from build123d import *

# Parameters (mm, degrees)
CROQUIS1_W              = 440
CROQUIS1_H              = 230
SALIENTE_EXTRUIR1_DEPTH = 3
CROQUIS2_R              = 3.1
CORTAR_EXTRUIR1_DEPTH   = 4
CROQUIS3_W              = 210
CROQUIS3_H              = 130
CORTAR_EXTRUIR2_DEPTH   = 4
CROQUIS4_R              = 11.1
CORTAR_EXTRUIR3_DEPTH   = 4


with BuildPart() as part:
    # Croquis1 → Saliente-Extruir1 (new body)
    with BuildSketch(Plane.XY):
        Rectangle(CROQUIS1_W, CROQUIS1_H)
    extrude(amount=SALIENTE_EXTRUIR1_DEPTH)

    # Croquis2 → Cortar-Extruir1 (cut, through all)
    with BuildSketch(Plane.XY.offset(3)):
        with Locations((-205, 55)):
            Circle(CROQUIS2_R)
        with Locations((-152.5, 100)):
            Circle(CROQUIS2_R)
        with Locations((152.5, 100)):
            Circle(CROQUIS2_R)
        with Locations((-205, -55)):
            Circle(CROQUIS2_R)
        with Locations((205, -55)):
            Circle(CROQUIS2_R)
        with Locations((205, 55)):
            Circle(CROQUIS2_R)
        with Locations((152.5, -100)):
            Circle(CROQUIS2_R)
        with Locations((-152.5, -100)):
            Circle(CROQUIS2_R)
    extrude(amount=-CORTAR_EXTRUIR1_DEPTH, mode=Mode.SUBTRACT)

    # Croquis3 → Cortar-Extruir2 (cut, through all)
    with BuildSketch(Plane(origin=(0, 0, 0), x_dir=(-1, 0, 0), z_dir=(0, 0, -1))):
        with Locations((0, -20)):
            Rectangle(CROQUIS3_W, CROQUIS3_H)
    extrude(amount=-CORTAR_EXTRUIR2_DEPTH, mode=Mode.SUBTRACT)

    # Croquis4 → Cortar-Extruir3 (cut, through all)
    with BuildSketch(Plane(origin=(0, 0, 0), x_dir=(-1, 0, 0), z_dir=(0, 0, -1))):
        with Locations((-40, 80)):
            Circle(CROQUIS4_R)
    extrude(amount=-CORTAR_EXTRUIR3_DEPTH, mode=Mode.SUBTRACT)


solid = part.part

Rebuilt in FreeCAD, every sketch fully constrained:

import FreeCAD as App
import Part
import Sketcher
from FreeCAD import Vector
Q = App.Units.Quantity

doc = App.newDocument("Part")
body = doc.addObject("PartDesign::Body", "Body")

sketch1 = body.newObject("Sketcher::SketchObject", "Sketch")
sketch1.AttachmentSupport = (doc.getObject("XY_Plane"), [""])
sketch1.MapMode = "FlatFace"
sketch1.addGeometry(Part.LineSegment(Vector(-220, 115, 0), Vector(-220, -115, 0)), False)
sketch1.addGeometry(Part.LineSegment(Vector(-220, -115, 0), Vector(220, -115, 0)), False)
sketch1.addGeometry(Part.LineSegment(Vector(220, -115, 0), Vector(220, 115, 0)), False)
sketch1.addGeometry(Part.LineSegment(Vector(220, 115, 0), Vector(-220, 115, 0)), False)
sketch1.addConstraint(Sketcher.Constraint("Coincident", 0, 2, 1, 1))
sketch1.addConstraint(Sketcher.Constraint("Coincident", 1, 2, 2, 1))
sketch1.addConstraint(Sketcher.Constraint("Coincident", 2, 2, 3, 1))
sketch1.addConstraint(Sketcher.Constraint("Coincident", 3, 2, 0, 1))
sketch1.addConstraint(Sketcher.Constraint("Vertical", 0))
sketch1.addConstraint(Sketcher.Constraint("Horizontal", 1))
sketch1.addConstraint(Sketcher.Constraint("Vertical", 2))
sketch1.addConstraint(Sketcher.Constraint("Horizontal", 3))
sketch1.addConstraint(Sketcher.Constraint("Symmetric", 0, 2, 2, 2, -1, 1))
sketch1.addConstraint(Sketcher.Constraint("DistanceX", 1, 1, 1, 2, Q("440 mm")))
sketch1.addConstraint(Sketcher.Constraint("DistanceY", 0, 2, 0, 1, Q("230 mm")))
pad1 = body.newObject("PartDesign::Pad", "Pad")
pad1.Profile = sketch1
pad1.Length = 3

sketch2 = body.newObject("Sketcher::SketchObject", "Sketch001")
sketch2.AttachmentSupport = (doc.getObject("XY_Plane"), [""])
sketch2.MapMode = "FlatFace"
sketch2.AttachmentOffset = App.Placement(Vector(0, 0, 3), App.Rotation())
sketch2.addGeometry(Part.Circle(Vector(-205, 55, 0), Vector(0, 0, 1), 3.1), False)
sketch2.addGeometry(Part.Circle(Vector(-152.5, 100, 0), Vector(0, 0, 1), 3.1), False)
sketch2.addGeometry(Part.Circle(Vector(152.5, 100, 0), Vector(0, 0, 1), 3.1), False)
sketch2.addGeometry(Part.Circle(Vector(-205, -55, 0), Vector(0, 0, 1), 3.1), False)
sketch2.addGeometry(Part.Circle(Vector(205, -55, 0), Vector(0, 0, 1), 3.1), False)
sketch2.addGeometry(Part.Circle(Vector(205, 55, 0), Vector(0, 0, 1), 3.1), False)
sketch2.addGeometry(Part.Circle(Vector(152.5, -100, 0), Vector(0, 0, 1), 3.1), False)
sketch2.addGeometry(Part.Circle(Vector(-152.5, -100, 0), Vector(0, 0, 1), 3.1), False)
sketch2.addConstraint(Sketcher.Constraint("Equal", 0, 1))
sketch2.addConstraint(Sketcher.Constraint("Equal", 1, 2))
sketch2.addConstraint(Sketcher.Constraint("Equal", 2, 3))
sketch2.addConstraint(Sketcher.Constraint("Equal", 3, 4))
sketch2.addConstraint(Sketcher.Constraint("Equal", 4, 5))
sketch2.addConstraint(Sketcher.Constraint("Equal", 5, 6))
sketch2.addConstraint(Sketcher.Constraint("Equal", 6, 7))
sketch2.addConstraint(Sketcher.Constraint("Symmetric", 0, 3, 4, 3, -1, 1))
sketch2.addConstraint(Sketcher.Constraint("Symmetric", 3, 3, 5, 3, -1, 1))
sketch2.addConstraint(Sketcher.Constraint("Symmetric", 1, 3, 6, 3, -1, 1))
sketch2.addConstraint(Sketcher.Constraint("Symmetric", 2, 3, 7, 3, -1, 1))
sketch2.addConstraint(Sketcher.Constraint("Symmetric", 1, 3, 2, 3, -2))
sketch2.addConstraint(Sketcher.Constraint("Symmetric", 3, 3, 4, 3, -2))
sketch2.addConstraint(Sketcher.Constraint("Diameter", 0, Q("6.2 mm")))
sketch2.addConstraint(Sketcher.Constraint("DistanceX", 0, 3, -1, 1, Q("205 mm")))
sketch2.addConstraint(Sketcher.Constraint("DistanceY", -1, 1, 0, 3, Q("55 mm")))
sketch2.addConstraint(Sketcher.Constraint("DistanceY", -1, 1, 1, 3, Q("100 mm")))
sketch2.addConstraint(Sketcher.Constraint("DistanceX", 1, 3, 2, 3, Q("305 mm")))
pocket1 = body.newObject("PartDesign::Pocket", "Pocket")
pocket1.Profile = sketch2
pocket1.Type = "ThroughAll"

sketch3 = body.newObject("Sketcher::SketchObject", "Sketch002")
sketch3.AttachmentSupport = (doc.getObject("XY_Plane"), [""])
sketch3.MapMode = "FlatFace"
sketch3.addGeometry(Part.LineSegment(Vector(105, 45, 0), Vector(105, -85, 0)), False)
sketch3.addGeometry(Part.LineSegment(Vector(105, -85, 0), Vector(-105, -85, 0)), False)
sketch3.addGeometry(Part.LineSegment(Vector(-105, -85, 0), Vector(-105, 45, 0)), False)
sketch3.addGeometry(Part.LineSegment(Vector(-105, 45, 0), Vector(105, 45, 0)), False)
sketch3.addConstraint(Sketcher.Constraint("Coincident", 0, 2, 1, 1))
sketch3.addConstraint(Sketcher.Constraint("Coincident", 1, 2, 2, 1))
sketch3.addConstraint(Sketcher.Constraint("Coincident", 2, 2, 3, 1))
sketch3.addConstraint(Sketcher.Constraint("Coincident", 3, 2, 0, 1))
sketch3.addConstraint(Sketcher.Constraint("Vertical", 0))
sketch3.addConstraint(Sketcher.Constraint("Horizontal", 1))
sketch3.addConstraint(Sketcher.Constraint("Vertical", 2))
sketch3.addConstraint(Sketcher.Constraint("Horizontal", 3))
sketch3.addConstraint(Sketcher.Constraint("DistanceX", 1, 2, 1, 1, Q("210 mm")))
sketch3.addConstraint(Sketcher.Constraint("DistanceY", 0, 2, 0, 1, Q("130 mm")))
sketch3.addConstraint(Sketcher.Constraint("DistanceX", -1, 1, 0, 2, Q("105 mm")))
sketch3.addConstraint(Sketcher.Constraint("DistanceY", 0, 2, -1, 1, Q("85 mm")))
pocket2 = body.newObject("PartDesign::Pocket", "Pocket001")
pocket2.Profile = sketch3
pocket2.Type = "ThroughAll"
pocket2.Reversed = True

sketch4 = body.newObject("Sketcher::SketchObject", "Sketch003")
sketch4.AttachmentSupport = (doc.getObject("XY_Plane"), [""])
sketch4.MapMode = "FlatFace"
sketch4.addGeometry(Part.Circle(Vector(40, 80, 0), Vector(0, 0, 1), 11.1), False)
sketch4.addConstraint(Sketcher.Constraint("Diameter", 0, Q("22.2 mm")))
sketch4.addConstraint(Sketcher.Constraint("DistanceX", -1, 1, 0, 3, Q("40 mm")))
sketch4.addConstraint(Sketcher.Constraint("DistanceY", -1, 1, 0, 3, Q("80 mm")))
pocket3 = body.newObject("PartDesign::Pocket", "Pocket002")
pocket3.Profile = sketch4
pocket3.Type = "ThroughAll"
pocket3.Reversed = True

doc.recompute()
